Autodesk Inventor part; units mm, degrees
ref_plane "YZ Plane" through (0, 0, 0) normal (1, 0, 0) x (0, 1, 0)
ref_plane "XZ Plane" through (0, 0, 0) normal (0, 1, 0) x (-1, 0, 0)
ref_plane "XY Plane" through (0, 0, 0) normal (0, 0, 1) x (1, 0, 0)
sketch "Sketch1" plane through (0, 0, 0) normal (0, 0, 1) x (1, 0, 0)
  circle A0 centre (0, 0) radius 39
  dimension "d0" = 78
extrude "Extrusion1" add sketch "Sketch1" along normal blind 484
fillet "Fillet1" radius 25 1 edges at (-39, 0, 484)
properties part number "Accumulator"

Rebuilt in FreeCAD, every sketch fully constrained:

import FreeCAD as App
import Part
import Sketcher
from FreeCAD import Vector


def edges_at(feature, points):
    """Names of the edges that pass closest to the given points."""
    edges = feature.Shape.Edges
    near = lambda p: min(range(len(edges)), key=lambda i: edges[i].distToShape(Part.Vertex(*p))[0])
    return sorted({f"Edge{near(p) + 1}" for p in points})

doc = App.newDocument("Part")
body = doc.addObject("PartDesign::Body", "Body")

sketch1 = doc.addObject("Sketcher::SketchObject", "Sketch")
body.addObject(sketch1)
sketch1.AttachmentSupport = (doc.XY_Plane, [""])
sketch1.MapMode = "FlatFace"
sketch1.addGeometry(Part.Circle(Vector(0, 0, 0), Vector(0, 0, 1), 39), False)
sketch1.addConstraint(Sketcher.Constraint("Coincident", 0, 3, -1, 1))
sketch1.addConstraint(Sketcher.Constraint("Diameter", 0, 78.0))
pad1 = doc.addObject("PartDesign::Pad", "Pad")
body.addObject(pad1)
pad1.Profile = sketch1
pad1.Length = 484
doc.recompute()

fillet = doc.addObject("PartDesign::Fillet", "Fillet")
body.addObject(fillet)
fillet.Base = (pad1, edges_at(pad1, [(-39, 0, 484)]))
fillet.Radius = 25

doc.recompute()
